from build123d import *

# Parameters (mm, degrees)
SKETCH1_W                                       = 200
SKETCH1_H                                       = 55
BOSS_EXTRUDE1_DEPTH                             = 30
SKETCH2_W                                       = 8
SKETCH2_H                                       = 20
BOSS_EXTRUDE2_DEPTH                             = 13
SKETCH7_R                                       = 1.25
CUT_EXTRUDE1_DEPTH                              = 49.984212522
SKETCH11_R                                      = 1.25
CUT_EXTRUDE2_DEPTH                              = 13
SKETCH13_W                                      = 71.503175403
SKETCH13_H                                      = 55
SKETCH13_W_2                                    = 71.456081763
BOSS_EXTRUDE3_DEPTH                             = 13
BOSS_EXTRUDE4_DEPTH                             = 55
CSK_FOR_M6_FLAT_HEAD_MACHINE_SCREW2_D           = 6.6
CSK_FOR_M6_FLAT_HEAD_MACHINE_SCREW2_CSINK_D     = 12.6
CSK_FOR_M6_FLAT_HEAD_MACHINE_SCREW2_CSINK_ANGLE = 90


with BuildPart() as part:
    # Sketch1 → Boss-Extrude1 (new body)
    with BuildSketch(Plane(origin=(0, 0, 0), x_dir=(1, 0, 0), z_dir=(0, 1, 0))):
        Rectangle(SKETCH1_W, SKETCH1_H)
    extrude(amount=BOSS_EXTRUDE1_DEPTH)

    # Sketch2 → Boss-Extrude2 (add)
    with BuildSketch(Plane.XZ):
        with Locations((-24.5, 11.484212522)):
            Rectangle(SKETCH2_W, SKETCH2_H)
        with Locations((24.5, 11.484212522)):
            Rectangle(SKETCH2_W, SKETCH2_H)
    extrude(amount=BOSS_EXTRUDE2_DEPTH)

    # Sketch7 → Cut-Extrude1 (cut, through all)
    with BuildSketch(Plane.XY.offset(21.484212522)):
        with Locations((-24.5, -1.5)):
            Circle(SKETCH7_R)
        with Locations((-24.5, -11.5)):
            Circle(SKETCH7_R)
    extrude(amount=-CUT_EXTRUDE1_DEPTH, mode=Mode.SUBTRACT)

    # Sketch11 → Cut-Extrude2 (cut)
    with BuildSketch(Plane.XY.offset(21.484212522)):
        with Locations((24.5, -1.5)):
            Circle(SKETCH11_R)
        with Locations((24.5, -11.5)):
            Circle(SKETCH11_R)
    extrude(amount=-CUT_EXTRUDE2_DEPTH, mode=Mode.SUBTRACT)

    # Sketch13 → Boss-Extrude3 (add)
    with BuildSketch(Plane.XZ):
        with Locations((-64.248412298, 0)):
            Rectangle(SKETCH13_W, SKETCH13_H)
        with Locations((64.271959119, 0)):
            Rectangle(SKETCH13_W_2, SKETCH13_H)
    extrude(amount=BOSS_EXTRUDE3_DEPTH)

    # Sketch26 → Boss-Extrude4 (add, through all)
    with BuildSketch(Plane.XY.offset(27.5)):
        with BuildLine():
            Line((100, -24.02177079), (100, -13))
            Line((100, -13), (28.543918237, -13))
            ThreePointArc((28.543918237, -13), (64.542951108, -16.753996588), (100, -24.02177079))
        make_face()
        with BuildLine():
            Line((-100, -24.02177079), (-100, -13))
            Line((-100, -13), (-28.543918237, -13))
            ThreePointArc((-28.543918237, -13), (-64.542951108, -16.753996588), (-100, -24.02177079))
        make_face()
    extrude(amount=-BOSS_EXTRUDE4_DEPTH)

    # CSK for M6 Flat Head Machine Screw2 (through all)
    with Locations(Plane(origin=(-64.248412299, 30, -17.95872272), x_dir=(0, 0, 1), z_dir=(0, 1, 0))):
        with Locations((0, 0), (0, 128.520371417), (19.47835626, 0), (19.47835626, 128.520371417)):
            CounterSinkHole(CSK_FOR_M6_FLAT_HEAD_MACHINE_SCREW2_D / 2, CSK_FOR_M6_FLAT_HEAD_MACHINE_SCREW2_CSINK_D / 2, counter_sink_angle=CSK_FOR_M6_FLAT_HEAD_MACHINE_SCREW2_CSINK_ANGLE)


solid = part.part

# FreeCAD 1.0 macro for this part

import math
import FreeCAD as App
import Part
import Sketcher
from FreeCAD import Vector


def add_polygon(sketch, points):
    """Adds a closed chain of lines whose ends are joined by coincident constraints."""
    first, n = sketch.GeometryCount, len(points)
    for a, b in zip(points, points[1:] + points[:1]):
        sketch.addGeometry(Part.LineSegment(App.Vector(*a, 0), App.Vector(*b, 0)), False)
    for i in range(n):
        sketch.addConstraint(Sketcher.Constraint("Coincident", first + i, 2, first + (i + 1) % n, 1))

doc = App.newDocument("Part")
body = doc.addObject("PartDesign::Body", "Body")

# Sketch on XZ plane
sketch1 = doc.addObject("Sketcher::SketchObject", "Sketch")
body.addObject(sketch1)
sketch1.AttachmentSupport = (doc.XZ_Plane, [""])
sketch1.MapMode = "FlatFace"
add_polygon(sketch1, [(-100, -27.5), (-100, 27.5), (100, 27.5), (100, -27.5)])  # lines 0-3
sketch1.addConstraint([
    Sketcher.Constraint("Vertical", 0),
    Sketcher.Constraint("Horizontal", 1),
    Sketcher.Constraint("Vertical", 2),
    Sketcher.Constraint("Horizontal", 3),
    Sketcher.Constraint("Symmetric", 0, 2, 2, 2, -1, 1),
    Sketcher.Constraint("DistanceX", 1, 1, 1, 2, 200.0),
    Sketcher.Constraint("DistanceY", 0, 1, 0, 2, 55.0),
])
pad1 = doc.addObject("PartDesign::Pad", "Pad")
body.addObject(pad1)
pad1.Profile = sketch1
pad1.Length = 30
pad1.Reversed = True

# Sketch on XZ plane
sketch2 = doc.addObject("Sketcher::SketchObject", "Sketch001")
body.addObject(sketch2)
sketch2.AttachmentSupport = (doc.XZ_Plane, [""])
sketch2.MapMode = "FlatFace"
add_polygon(sketch2, [(-28.5, 21.484213), (-28.5, 1.484213), (-20.5, 1.484213), (-20.5, 21.484213)])  # lines 0-3
add_polygon(sketch2, [(20.5, 21.484213), (20.5, 1.484213), (28.5, 1.484213), (28.5, 21.484213)])  # lines 4-7
sketch2.addConstraint([
    Sketcher.Constraint("Vertical", 0),
    Sketcher.Constraint("Horizontal", 1),
    Sketcher.Constraint("Vertical", 2),
    Sketcher.Constraint("Horizontal", 3),
    Sketcher.Constraint("Vertical", 4),
    Sketcher.Constraint("Horizontal", 5),
    Sketcher.Constraint("Vertical", 6),
    Sketcher.Constraint("Horizontal", 7),
    Sketcher.Constraint("Symmetric", 1, 2, 4, 2, -2),
    Sketcher.Constraint("Symmetric", 3, 2, 6, 2, -2),
    Sketcher.Constraint("DistanceX", 1, 1, 1, 2, 8.0),
    Sketcher.Constraint("DistanceY", 0, 2, 0, 1, 20.0),
    Sketcher.Constraint("DistanceX", 1, 2, 4, 2, 41.0),
    Sketcher.Constraint("DistanceY", -1, 1, 0, 2, 1.484213),
])
pad2 = doc.addObject("PartDesign::Pad", "Pad001")
body.addObject(pad2)
pad2.Profile = sketch2
pad2.Length = 13

# Sketch on XY plane
sketch3 = doc.addObject("Sketcher::SketchObject", "Sketch002")
body.addObject(sketch3)
sketch3.AttachmentSupport = (doc.XY_Plane, [""])
sketch3.MapMode = "FlatFace"
sketch3.AttachmentOffset = App.Placement(Vector(0, 0, 21.484213), App.Rotation())
sketch3.addGeometry([
    Part.Circle(Vector(-24.5, -1.5, 0), Vector(0, 0, 1), 1.25),
    Part.Circle(Vector(-24.5, -11.5, 0), Vector(0, 0, 1), 1.25),
], False)
sketch3.addConstraint([
    Sketcher.Constraint("Equal", 0, 1),
    Sketcher.Constraint("Vertical", 0, 3, 1, 3),
    Sketcher.Constraint("Diameter", 0, 2.5),
    Sketcher.Constraint("DistanceY", 1, 3, 0, 3, 10.0),
    Sketcher.Constraint("DistanceX", 0, 3, -1, 1, 24.5),
    Sketcher.Constraint("DistanceY", 0, 3, -1, 1, 1.5),
])
pocket1 = doc.addObject("PartDesign::Pocket", "Pocket")
body.addObject(pocket1)
pocket1.Profile = sketch3
pocket1.Type = "ThroughAll"

# Sketch on XY plane
sketch4 = doc.addObject("Sketcher::SketchObject", "Sketch003")
body.addObject(sketch4)
sketch4.AttachmentSupport = (doc.XY_Plane, [""])
sketch4.MapMode = "FlatFace"
sketch4.AttachmentOffset = App.Placement(Vector(0, 0, 21.484213), App.Rotation())
sketch4.addGeometry([
    Part.Circle(Vector(24.5, -1.5, 0), Vector(0, 0, 1), 1.25),
    Part.Circle(Vector(24.5, -11.5, 0), Vector(0, 0, 1), 1.25),
], False)
sketch4.addConstraint([
    Sketcher.Constraint("Equal", 0, 1),
    Sketcher.Constraint("Vertical", 0, 3, 1, 3),
    Sketcher.Constraint("Diameter", 0, 2.5),
    Sketcher.Constraint("DistanceY", 1, 3, 0, 3, 10.0),
    Sketcher.Constraint("DistanceX", -1, 1, 0, 3, 24.5),
    Sketcher.Constraint("DistanceY", 0, 3, -1, 1, 1.5),
])
pocket2 = doc.addObject("PartDesign::Pocket", "Pocket001")
body.addObject(pocket2)
pocket2.Profile = sketch4
pocket2.Length = 13

# Sketch on XZ plane
sketch5 = doc.addObject("Sketcher::SketchObject", "Sketch004")
body.addObject(sketch5)
sketch5.AttachmentSupport = (doc.XZ_Plane, [""])
sketch5.MapMode = "FlatFace"
add_polygon(sketch5, [(-100, 27.5), (-100, -27.5), (-28.496825, -27.5), (-28.496825, 27.5)])  # lines 0-3
add_polygon(sketch5, [(28.543918, 27.5), (28.543918, -27.5), (100, -27.5), (100, 27.5)])  # lines 4-7
sketch5.addConstraint([
    Sketcher.Constraint("Vertical", 0),
    Sketcher.Constraint("Horizontal", 1),
    Sketcher.Constraint("Vertical", 2),
    Sketcher.Constraint("Horizontal", 3),
    Sketcher.Constraint("Vertical", 4),
    Sketcher.Constraint("Horizontal", 5),
    Sketcher.Constraint("Vertical", 6),
    Sketcher.Constraint("Horizontal", 7),
    Sketcher.Constraint("Symmetric", 3, 2, 5, 2, -1, 1),
    Sketcher.Constraint("Horizontal", 1, 2, 4, 2),
    Sketcher.Constraint("Horizontal", 3, 2, 6, 2),
    Sketcher.Constraint("DistanceY", 0, 2, 0, 1, 55.0),
    Sketcher.Constraint("DistanceX", 0, 2, -1, 1, 100.0),
    Sketcher.Constraint("DistanceX", 5, 1, 5, 2, 71.456082),
    Sketcher.Constraint("DistanceX", 1, 1, 1, 2, 71.503175),
])
pad3 = doc.addObject("PartDesign::Pad", "Pad002")
body.addObject(pad3)
pad3.Profile = sketch5
pad3.Length = 13

# Sketch on XY plane
sketch6 = doc.addObject("Sketcher::SketchObject", "Sketch005")
body.addObject(sketch6)
sketch6.AttachmentSupport = (doc.XY_Plane, [""])
sketch6.MapMode = "FlatFace"
sketch6.AttachmentOffset = App.Placement(Vector(0, 0, 27.5), App.Rotation())
sketch6.addGeometry([
    Part.LineSegment(Vector(100, -24.021771, 0), Vector(100, -13, 0)),  # 0
    Part.LineSegment(Vector(100, -13, 0), Vector(28.543918, -13, 0)),  # 1
    Part.ArcOfCircle(Part.Circle(Vector(8.372851, -380.914653, 0), Vector(0, 0, 1), 368.467182), math.radians(75.60111), math.radians(86.861878)),  # 2
    Part.LineSegment(Vector(-100, -13, 0), Vector(-100, -24.021771, 0)),  # 3
    Part.ArcOfCircle(Part.Circle(Vector(-8.372851, -380.914653, 0), Vector(0, 0, 1), 368.467182), math.radians(93.138122), math.radians(104.39889)),  # 4
    Part.LineSegment(Vector(-28.543918, -13, 0), Vector(-100, -13, 0)),  # 5
], False)
sketch6.addConstraint([
    Sketcher.Constraint("Coincident", 0, 2, 1, 1),
    Sketcher.Constraint("Coincident", 1, 2, 2, 2),
    Sketcher.Constraint("Coincident", 2, 1, 0, 1),
    Sketcher.Constraint("Coincident", 3, 2, 4, 2),
    Sketcher.Constraint("Coincident", 4, 1, 5, 1),
    Sketcher.Constraint("Coincident", 5, 2, 3, 1),
    Sketcher.Constraint("Vertical", 0),
    Sketcher.Constraint("Horizontal", 1),
    Sketcher.Constraint("Vertical", 3),
    Sketcher.Constraint("Horizontal", 5),
    Sketcher.Constraint("Equal", 2, 4),
    Sketcher.Constraint("Symmetric", 2, 3, 4, 3, -2),
    Sketcher.Constraint("Symmetric", 0, 2, 5, 2, -2),
    Sketcher.Constraint("DistanceX", -1, 1, 0, 2, 100.0),
    Sketcher.Constraint("DistanceY", 0, 2, -1, 1, 13.0),
    Sketcher.Constraint("Radius", 2, 368.467182),
    Sketcher.Constraint("DistanceX", 1, 2, 1, 1, 71.456082),
    Sketcher.Constraint("DistanceY", 0, 1, 0, 2, 11.021771),
])
pad4 = doc.addObject("PartDesign::Pad", "Pad003")
body.addObject(pad4)
pad4.Profile = sketch6
pad4.Length = 55
pad4.Reversed = True

# Sketch on XZ plane
sketch7 = doc.addObject("Sketcher::SketchObject", "Sketch006")
body.addObject(sketch7)
sketch7.AttachmentSupport = (doc.XZ_Plane, [""])
sketch7.MapMode = "FlatFace"
sketch7.AttachmentOffset = App.Placement(Vector(0, 0, -30), App.Rotation())
sketch7.addGeometry([
    Part.Circle(Vector(-64.248412, -17.958723, 0), Vector(0, 0, 1), 3.3),
    Part.Circle(Vector(64.271959, -17.958723, 0), Vector(0, 0, 1), 3.3),
    Part.Circle(Vector(-64.248412, 1.519634, 0), Vector(0, 0, 1), 3.3),
    Part.Circle(Vector(64.271959, 1.519634, 0), Vector(0, 0, 1), 3.3),
], False)
sketch7.addConstraint([
    Sketcher.Constraint("Equal", 0, 1),
    Sketcher.Constraint("Equal", 1, 2),
    Sketcher.Constraint("Equal", 2, 3),
    Sketcher.Constraint("Horizontal", 0, 3, 1, 3),
    Sketcher.Constraint("Horizontal", 2, 3, 3, 3),
    Sketcher.Constraint("Vertical", 0, 3, 2, 3),
    Sketcher.Constraint("Vertical", 1, 3, 3, 3),
    Sketcher.Constraint("Diameter", 0, 6.6),
    Sketcher.Constraint("DistanceX", -1, 1, 1, 3, 64.271959),
    Sketcher.Constraint("DistanceX", 0, 3, 1, 3, 128.520371),
    Sketcher.Constraint("DistanceY", 0, 3, -1, 1, 17.958723),
    Sketcher.Constraint("DistanceY", -1, 1, 2, 3, 1.519634),
])
doc.recompute()
hole = doc.addObject("PartDesign::Hole", "Hole")
body.addObject(hole)
hole.Profile = sketch7
hole.ThreadType = "None"
hole.Diameter = 6.6
hole.DepthType = "ThroughAll"
hole.HoleCutType = "Countersink"
hole.HoleCutDiameter = 12.6
hole.HoleCutCountersinkAngle = 90
hole.Reversed = True

doc.recompute()
